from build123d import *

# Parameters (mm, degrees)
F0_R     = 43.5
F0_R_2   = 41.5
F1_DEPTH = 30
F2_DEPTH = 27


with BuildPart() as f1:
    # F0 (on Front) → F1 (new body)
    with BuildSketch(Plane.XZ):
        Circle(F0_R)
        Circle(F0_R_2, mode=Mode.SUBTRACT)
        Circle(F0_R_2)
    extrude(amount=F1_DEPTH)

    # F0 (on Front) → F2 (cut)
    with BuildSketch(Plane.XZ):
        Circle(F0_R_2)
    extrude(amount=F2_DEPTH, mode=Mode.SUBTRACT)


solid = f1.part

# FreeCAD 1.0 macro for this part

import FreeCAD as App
import Part
import Sketcher
Q = App.Units.Quantity

doc = App.newDocument("Part")
body = doc.addObject("PartDesign::Body", "Body")

# Sketch on XZ plane
sketch1 = body.newObject("Sketcher::SketchObject", "Sketch")
sketch1.AttachmentSupport = (doc.getObject("XZ_Plane"), [""])
sketch1.MapMode = "FlatFace"
sketch1.addGeometry(Part.Circle(App.Vector(0, 0, 0), App.Vector(0, 0, 1), 43.5), False)
sketch1.addConstraint([
    Sketcher.Constraint("Coincident", 0, 3, -1, 1),
    Sketcher.Constraint("Diameter", 0, Q("87 mm")),
])
pad1 = body.newObject("PartDesign::Pad", "Pad")
pad1.Profile = sketch1
pad1.Length = 30

# Sketch on XZ plane
sketch2 = body.newObject("Sketcher::SketchObject", "Sketch001")
sketch2.AttachmentSupport = (doc.getObject("XZ_Plane"), [""])
sketch2.MapMode = "FlatFace"
sketch2.addGeometry(Part.Circle(App.Vector(0, 0, 0), App.Vector(0, 0, 1), 41.5), False)
sketch2.addConstraint([
    Sketcher.Constraint("Coincident", 0, 3, -1, 1),
    Sketcher.Constraint("Diameter", 0, Q("83 mm")),
])
pocket1 = body.newObject("PartDesign::Pocket", "Pocket")
pocket1.Profile = sketch2
pocket1.Length = 27
pocket1.Reversed = True

doc.recompute()
